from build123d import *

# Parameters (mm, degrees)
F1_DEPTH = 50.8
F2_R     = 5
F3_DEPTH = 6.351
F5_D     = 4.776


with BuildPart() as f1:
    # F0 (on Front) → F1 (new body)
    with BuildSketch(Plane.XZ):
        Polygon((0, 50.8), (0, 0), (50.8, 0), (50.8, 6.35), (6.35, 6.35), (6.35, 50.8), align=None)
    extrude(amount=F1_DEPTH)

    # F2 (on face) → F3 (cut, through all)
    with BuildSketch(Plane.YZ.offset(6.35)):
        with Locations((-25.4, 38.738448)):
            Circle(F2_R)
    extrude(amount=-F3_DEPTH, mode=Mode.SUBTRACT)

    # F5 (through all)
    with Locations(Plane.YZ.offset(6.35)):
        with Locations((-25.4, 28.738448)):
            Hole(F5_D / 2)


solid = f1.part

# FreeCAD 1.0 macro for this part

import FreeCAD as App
import Part
import Sketcher
Q = App.Units.Quantity


def add_polygon(sketch, points):
    """Adds a closed chain of lines whose ends are joined by coincident constraints."""
    first, n = sketch.GeometryCount, len(points)
    for a, b in zip(points, points[1:] + points[:1]):
        sketch.addGeometry(Part.LineSegment(App.Vector(*a, 0), App.Vector(*b, 0)), False)
    for i in range(n):
        sketch.addConstraint(Sketcher.Constraint("Coincident", first + i, 2, first + (i + 1) % n, 1))

doc = App.newDocument("Part")
body = doc.addObject("PartDesign::Body", "Body")

# Sketch on XZ plane
sketch1 = body.newObject("Sketcher::SketchObject", "Sketch")
sketch1.AttachmentSupport = (doc.getObject("XZ_Plane"), [""])
sketch1.MapMode = "FlatFace"
add_polygon(sketch1, [(0, 50.8), (0, 0), (50.8, 0), (50.8, 6.35), (6.35, 6.35), (6.35, 50.8)])  # lines 0-5
sketch1.addConstraint([
    Sketcher.Constraint("Vertical", 0),
    Sketcher.Constraint("Horizontal", 1),
    Sketcher.Constraint("Vertical", 2),
    Sketcher.Constraint("Horizontal", 3),
    Sketcher.Constraint("Vertical", 4),
    Sketcher.Constraint("Horizontal", 5),
    Sketcher.Constraint("Coincident", 0, 2, -1, 1),
    Sketcher.Constraint("Equal", 1, 0),
    Sketcher.Constraint("Equal", 5, 2),
    Sketcher.Constraint("DistanceX", 1, 1, 1, 2, Q("2 in")),
    Sketcher.Constraint("DistanceX", 3, 2, 3, 1, Q("1.75 in")),
])
pad1 = body.newObject("PartDesign::Pad", "Pad")
pad1.Profile = sketch1
pad1.Length = Q("2 in")

# Sketch on YZ plane
sketch2 = body.newObject("Sketcher::SketchObject", "Sketch001")
sketch2.AttachmentSupport = (doc.getObject("YZ_Plane"), [""])
sketch2.MapMode = "FlatFace"
sketch2.AttachmentOffset = App.Placement(App.Vector(0, 0, 0.25 * 25.4), App.Rotation())
sketch2.addGeometry(Part.Circle(App.Vector(-25.4, 38.738448, 0), App.Vector(0, 0, 1), 5), False)
sketch2.addConstraint([
    Sketcher.Constraint("DistanceX", 0, 3, -1, 1, Q("1 in")),
    Sketcher.Constraint("Diameter", 0, Q("10 mm")),
    Sketcher.Constraint("DistanceY", -1, 1, 0, 3, Q("38.738448 mm")),
])
pocket1 = body.newObject("PartDesign::Pocket", "Pocket")
pocket1.Profile = sketch2
pocket1.Type = "ThroughAll"

# Sketch on YZ plane
sketch3 = body.newObject("Sketcher::SketchObject", "Sketch002")
sketch3.AttachmentSupport = (doc.getObject("YZ_Plane"), [""])
sketch3.MapMode = "FlatFace"
sketch3.AttachmentOffset = App.Placement(App.Vector(0, 0, 0.25 * 25.4), App.Rotation())
sketch3.addGeometry(Part.Circle(App.Vector(-25.4, 28.738448, 0), App.Vector(0, 0, 1), 2.388), False)
sketch3.addConstraint([
    Sketcher.Constraint("DistanceX", 0, 3, -1, 1, Q("1 in")),
    Sketcher.Constraint("Diameter", 0, Q("4.776 mm")),
    Sketcher.Constraint("DistanceY", -1, 1, 0, 3, Q("28.738448 mm")),
])
doc.recompute()
hole = body.newObject("PartDesign::Hole", "Hole")
hole.Profile = sketch3
hole.ThreadType = "None"
hole.Diameter = 4.776
hole.DepthType = "ThroughAll"

doc.recompute()
